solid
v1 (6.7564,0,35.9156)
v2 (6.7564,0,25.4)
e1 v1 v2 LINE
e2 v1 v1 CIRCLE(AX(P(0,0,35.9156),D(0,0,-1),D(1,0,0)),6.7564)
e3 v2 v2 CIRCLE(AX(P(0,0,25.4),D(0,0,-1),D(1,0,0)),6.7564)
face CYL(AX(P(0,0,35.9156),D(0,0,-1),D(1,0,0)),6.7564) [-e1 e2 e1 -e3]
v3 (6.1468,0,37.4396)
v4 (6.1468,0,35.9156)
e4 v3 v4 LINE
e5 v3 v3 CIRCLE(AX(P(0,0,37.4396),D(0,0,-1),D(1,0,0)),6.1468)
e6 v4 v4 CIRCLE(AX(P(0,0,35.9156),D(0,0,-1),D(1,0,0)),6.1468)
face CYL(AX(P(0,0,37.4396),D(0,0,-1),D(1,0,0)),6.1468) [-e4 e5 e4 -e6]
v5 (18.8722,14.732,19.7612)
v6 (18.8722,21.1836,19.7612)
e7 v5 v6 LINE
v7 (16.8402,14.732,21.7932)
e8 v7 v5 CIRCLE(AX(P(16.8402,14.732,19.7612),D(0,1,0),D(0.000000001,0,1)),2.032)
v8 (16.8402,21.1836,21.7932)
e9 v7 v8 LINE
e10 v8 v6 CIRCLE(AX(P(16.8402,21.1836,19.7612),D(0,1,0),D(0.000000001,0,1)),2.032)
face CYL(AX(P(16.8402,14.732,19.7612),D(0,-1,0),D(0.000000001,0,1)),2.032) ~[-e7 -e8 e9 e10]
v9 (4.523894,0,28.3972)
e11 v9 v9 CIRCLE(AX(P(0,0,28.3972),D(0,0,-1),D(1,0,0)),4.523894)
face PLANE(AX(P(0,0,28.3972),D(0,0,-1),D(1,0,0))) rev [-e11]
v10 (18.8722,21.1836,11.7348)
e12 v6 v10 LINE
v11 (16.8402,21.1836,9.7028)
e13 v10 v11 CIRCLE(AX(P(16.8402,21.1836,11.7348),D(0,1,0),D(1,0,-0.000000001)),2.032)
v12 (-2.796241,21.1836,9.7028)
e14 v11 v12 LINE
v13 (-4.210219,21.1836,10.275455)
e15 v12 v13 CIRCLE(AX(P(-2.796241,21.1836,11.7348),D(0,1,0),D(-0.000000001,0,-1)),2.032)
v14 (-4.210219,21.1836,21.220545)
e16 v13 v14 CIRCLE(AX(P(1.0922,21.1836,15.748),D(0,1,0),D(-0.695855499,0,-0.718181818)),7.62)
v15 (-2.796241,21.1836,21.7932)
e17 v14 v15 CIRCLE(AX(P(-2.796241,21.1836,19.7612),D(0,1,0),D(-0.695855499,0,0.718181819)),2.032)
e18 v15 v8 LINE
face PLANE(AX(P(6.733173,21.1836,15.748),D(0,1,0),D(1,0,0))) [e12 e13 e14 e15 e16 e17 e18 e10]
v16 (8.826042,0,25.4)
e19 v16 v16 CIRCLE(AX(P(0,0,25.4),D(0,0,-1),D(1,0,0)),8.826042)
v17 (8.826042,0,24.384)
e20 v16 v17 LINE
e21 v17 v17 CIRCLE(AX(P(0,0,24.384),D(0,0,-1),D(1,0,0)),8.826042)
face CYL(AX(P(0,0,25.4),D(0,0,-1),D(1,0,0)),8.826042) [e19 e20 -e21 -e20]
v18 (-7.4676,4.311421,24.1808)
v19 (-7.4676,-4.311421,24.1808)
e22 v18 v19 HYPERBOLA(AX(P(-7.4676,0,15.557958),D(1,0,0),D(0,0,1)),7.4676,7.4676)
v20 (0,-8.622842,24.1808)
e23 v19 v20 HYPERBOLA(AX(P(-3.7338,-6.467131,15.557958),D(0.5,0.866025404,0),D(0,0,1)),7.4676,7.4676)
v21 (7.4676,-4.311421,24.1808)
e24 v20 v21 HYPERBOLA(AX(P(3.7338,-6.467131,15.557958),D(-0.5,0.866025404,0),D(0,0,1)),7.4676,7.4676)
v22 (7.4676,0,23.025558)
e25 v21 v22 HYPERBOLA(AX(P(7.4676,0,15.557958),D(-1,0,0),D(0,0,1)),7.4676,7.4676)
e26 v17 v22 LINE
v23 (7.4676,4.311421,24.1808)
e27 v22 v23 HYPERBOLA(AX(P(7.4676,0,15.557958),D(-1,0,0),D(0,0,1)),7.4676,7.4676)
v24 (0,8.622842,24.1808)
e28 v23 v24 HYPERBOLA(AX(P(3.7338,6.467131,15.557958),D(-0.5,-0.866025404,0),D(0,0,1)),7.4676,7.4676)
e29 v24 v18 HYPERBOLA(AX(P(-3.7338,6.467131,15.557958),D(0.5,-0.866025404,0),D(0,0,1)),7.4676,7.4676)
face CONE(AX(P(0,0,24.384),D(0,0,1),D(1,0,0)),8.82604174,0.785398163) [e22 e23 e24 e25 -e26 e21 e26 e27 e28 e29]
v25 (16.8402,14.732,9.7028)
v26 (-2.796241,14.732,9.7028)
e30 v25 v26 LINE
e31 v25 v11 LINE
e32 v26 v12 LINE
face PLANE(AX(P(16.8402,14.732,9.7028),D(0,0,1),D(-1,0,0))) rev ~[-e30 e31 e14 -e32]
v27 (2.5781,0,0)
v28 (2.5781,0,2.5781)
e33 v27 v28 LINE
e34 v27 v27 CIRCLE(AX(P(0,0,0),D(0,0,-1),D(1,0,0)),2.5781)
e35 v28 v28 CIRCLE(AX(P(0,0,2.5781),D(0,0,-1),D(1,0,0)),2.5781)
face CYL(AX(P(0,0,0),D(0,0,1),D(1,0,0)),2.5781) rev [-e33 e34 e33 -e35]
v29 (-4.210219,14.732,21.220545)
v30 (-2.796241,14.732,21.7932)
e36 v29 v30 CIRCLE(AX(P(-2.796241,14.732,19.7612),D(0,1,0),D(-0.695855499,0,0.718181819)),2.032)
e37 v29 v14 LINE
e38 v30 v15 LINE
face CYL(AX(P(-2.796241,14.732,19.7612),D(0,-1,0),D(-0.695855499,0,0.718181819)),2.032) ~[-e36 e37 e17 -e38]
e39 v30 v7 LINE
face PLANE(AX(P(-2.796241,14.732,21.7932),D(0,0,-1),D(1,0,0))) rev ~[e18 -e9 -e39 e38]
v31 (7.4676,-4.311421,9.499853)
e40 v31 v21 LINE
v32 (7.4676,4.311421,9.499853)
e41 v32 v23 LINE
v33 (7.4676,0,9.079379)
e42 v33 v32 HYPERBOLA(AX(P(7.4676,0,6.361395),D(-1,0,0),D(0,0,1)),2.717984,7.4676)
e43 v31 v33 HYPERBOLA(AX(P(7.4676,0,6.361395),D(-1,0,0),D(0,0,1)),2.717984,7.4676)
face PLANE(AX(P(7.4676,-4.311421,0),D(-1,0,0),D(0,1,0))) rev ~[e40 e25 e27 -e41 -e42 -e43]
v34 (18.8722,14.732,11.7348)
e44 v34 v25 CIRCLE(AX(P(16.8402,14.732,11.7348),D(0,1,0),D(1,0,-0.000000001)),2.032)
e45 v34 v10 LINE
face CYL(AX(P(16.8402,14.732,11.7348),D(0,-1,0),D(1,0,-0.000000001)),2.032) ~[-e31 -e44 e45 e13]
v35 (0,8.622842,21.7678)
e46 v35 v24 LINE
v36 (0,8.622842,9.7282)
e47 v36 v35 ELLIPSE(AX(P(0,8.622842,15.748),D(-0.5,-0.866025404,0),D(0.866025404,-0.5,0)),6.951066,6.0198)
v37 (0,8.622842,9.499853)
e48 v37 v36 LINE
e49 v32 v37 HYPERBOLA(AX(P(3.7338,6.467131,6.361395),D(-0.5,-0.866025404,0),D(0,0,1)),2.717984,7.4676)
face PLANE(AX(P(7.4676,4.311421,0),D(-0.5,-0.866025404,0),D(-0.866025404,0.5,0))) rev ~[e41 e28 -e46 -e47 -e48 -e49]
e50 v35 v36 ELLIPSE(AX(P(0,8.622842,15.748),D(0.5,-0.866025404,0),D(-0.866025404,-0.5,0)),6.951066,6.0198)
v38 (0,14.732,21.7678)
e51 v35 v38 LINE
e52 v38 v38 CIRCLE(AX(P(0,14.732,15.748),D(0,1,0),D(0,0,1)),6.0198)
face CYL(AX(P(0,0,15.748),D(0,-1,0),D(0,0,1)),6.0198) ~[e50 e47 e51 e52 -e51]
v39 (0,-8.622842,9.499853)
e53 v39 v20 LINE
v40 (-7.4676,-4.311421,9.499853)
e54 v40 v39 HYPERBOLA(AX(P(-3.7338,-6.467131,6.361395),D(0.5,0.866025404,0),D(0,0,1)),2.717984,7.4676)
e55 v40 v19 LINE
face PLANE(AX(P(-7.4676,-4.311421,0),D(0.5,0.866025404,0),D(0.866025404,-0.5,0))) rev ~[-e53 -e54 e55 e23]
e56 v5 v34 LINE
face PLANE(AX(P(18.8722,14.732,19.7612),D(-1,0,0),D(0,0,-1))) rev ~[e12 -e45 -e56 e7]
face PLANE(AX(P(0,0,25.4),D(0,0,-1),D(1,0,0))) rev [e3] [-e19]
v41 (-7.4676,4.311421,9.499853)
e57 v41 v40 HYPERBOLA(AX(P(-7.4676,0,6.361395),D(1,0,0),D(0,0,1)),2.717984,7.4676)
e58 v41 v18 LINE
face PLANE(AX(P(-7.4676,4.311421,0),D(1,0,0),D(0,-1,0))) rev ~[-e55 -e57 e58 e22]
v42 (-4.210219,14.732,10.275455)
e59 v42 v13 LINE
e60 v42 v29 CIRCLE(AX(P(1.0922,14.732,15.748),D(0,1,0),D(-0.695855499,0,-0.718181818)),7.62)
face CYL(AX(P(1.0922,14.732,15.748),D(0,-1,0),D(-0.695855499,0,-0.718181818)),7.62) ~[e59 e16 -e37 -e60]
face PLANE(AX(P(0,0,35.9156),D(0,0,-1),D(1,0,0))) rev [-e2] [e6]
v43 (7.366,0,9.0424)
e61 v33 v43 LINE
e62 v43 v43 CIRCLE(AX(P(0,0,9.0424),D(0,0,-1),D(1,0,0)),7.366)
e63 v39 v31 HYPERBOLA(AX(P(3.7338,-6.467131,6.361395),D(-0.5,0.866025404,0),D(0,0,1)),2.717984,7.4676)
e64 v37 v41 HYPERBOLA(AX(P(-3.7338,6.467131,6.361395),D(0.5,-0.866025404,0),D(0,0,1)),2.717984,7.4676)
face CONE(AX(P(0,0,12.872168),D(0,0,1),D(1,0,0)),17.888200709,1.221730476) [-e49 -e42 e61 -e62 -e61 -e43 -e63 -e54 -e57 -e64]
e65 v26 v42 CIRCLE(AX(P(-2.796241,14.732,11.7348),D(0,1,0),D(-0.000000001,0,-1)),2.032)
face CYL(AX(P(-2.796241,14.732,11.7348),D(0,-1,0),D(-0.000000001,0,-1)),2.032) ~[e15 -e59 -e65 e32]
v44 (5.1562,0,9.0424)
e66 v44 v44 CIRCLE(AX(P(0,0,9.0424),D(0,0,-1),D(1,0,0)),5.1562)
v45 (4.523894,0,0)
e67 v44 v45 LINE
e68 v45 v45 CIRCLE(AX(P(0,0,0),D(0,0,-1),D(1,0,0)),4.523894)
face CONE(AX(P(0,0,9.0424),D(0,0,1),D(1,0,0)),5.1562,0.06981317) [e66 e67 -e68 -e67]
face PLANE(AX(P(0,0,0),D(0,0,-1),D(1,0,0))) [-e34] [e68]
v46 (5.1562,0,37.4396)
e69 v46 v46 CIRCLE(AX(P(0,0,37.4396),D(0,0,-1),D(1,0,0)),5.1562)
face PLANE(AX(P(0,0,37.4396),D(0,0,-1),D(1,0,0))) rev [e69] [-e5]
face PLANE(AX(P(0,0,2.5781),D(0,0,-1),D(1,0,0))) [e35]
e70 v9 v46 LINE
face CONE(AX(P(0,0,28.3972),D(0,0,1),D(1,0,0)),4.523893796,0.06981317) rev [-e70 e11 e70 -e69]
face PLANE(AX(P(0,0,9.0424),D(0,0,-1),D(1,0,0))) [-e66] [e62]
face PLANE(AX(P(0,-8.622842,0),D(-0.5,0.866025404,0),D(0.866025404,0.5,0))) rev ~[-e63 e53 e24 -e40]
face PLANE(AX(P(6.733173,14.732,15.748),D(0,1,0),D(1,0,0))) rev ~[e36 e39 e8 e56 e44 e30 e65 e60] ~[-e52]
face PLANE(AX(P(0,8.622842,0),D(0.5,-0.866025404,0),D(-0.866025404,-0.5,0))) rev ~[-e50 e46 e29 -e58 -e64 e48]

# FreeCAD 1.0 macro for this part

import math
import FreeCAD as App
import Part
import Sketcher
from FreeCAD import Vector
Q = App.Units.Quantity

doc = App.newDocument("Part")
params = doc.addObject("Spreadsheet::Sheet", "Params")
for row, (alias, value) in enumerate([
    ("pad1_length", "1.8 in"),
    ("sketch2_height", "0.06 in"),
    ("sketch2_width", "0.039 in"),
    ("sketch2_width2", "0.024 in"),
    ("sketch2_width3", "0.087 in"),
    ("sketch2_height2", "0.414 in"),
    ("groove_angle", "360 deg"),
    ("sketch3_height", "0.04 in"),
    ("revolution_angle", "360 deg"),
    ("sketch4_diameter", "0.474 in"),
    ("pad2_length", "0.58 in"),
    ("sketch5_radius", "0.3 in"),
    ("sketch5_radius2", "0.08 in"),
    ("sketch5_height", "0.316 in"),
    ("pad3_length", "0.254 in"),
], start=1):
    params.set(f"A{row}", alias)
    params.set(f"B{row}", "=" + value)
    params.setAlias(f"B{row}", alias)

body = doc.addObject("PartDesign::Body", "Body")

sketch1 = body.newObject("Sketcher::SketchObject", "Sketch")
sketch1.AttachmentSupport = (doc.getObject("XY_Plane"), [""])
sketch1.MapMode = "FlatFace"
sketch1.addGeometry(Part.LineSegment(Vector(0, 9, 0), Vector(-7, 4, 0)), False)
sketch1.addGeometry(Part.LineSegment(Vector(-7, 4, 0), Vector(-7, -4, 0)), False)
sketch1.addGeometry(Part.LineSegment(Vector(-7, -4, 0), Vector(0, -9, 0)), False)
sketch1.addGeometry(Part.LineSegment(Vector(0, -9, 0), Vector(7, -4, 0)), False)
sketch1.addGeometry(Part.LineSegment(Vector(7, -4, 0), Vector(7, 4, 0)), False)
sketch1.addGeometry(Part.LineSegment(Vector(7, 4, 0), Vector(0, 9, 0)), False)
sketch1.addConstraint(Sketcher.Constraint("Coincident", 0, 2, 1, 1))
sketch1.addConstraint(Sketcher.Constraint("Coincident", 1, 2, 2, 1))
sketch1.addConstraint(Sketcher.Constraint("Coincident", 2, 2, 3, 1))
sketch1.addConstraint(Sketcher.Constraint("Coincident", 3, 2, 4, 1))
sketch1.addConstraint(Sketcher.Constraint("Coincident", 4, 2, 5, 1))
sketch1.addConstraint(Sketcher.Constraint("Coincident", 5, 2, 0, 1))
sketch1.addConstraint(Sketcher.Constraint("Vertical", 1))
sketch1.addConstraint(Sketcher.Constraint("Vertical", 4))
sketch1.addConstraint(Sketcher.Constraint("Symmetric", 0, 2, 3, 2, -1, 1))
sketch1.addConstraint(Sketcher.Constraint("Symmetric", 2, 2, 5, 2, -1, 1))
sketch1.addConstraint(Sketcher.Constraint("PointOnObject", 2, 2, -2))
sketch1.addConstraint(Sketcher.Constraint("Parallel", 2, 5))
sketch1.addConstraint(Sketcher.Constraint("Horizontal", 1, 2, 3, 2))
sketch1.addConstraint(Sketcher.Constraint("Angle", 0, Q("-150 deg")))
sketch1.addConstraint(Sketcher.Constraint("DistanceX", 0, 2, -1, 1, Q("0.294 in")))
sketch1.addConstraint(Sketcher.Constraint("DistanceY", 1, 2, 1, 1, Q("8.622842 mm")))
pad1 = body.newObject("PartDesign::Pad", "Pad")
pad1.Profile = sketch1
pad1.setExpression("Length", "Params.pad1_length")

sketch2 = body.newObject("Sketcher::SketchObject", "Sketch001")
sketch2.AttachmentSupport = (doc.getObject("YZ_Plane"), [""])
sketch2.MapMode = "FlatFace"
sketch2.addGeometry(Part.LineSegment(Vector(0, -8.7, 0), Vector(29, -8.7, 0)), False)
sketch2.addGeometry(Part.LineSegment(Vector(29, -8.7, 0), Vector(29, 61.3, 0)), False)
sketch2.addGeometry(Part.LineSegment(Vector(29, 61.3, 0), Vector(0, 61.3, 0)), False)
sketch2.addGeometry(Part.LineSegment(Vector(0, 61.3, 0), Vector(0, 28.4, 0)), False)
sketch2.addGeometry(Part.LineSegment(Vector(0, 28.4, 0), Vector(4.5, 28.4, 0)), False)
sketch2.addGeometry(Part.LineSegment(Vector(4.5, 28.4, 0), Vector(5.2, 37.4, 0)), False)
sketch2.addGeometry(Part.LineSegment(Vector(5.2, 37.4, 0), Vector(6.1, 37.4, 0)), False)
sketch2.addGeometry(Part.LineSegment(Vector(6.1, 37.4, 0), Vector(6.1, 35.9, 0)), False)
sketch2.addGeometry(Part.LineSegment(Vector(6.1, 35.9, 0), Vector(6.8, 35.9, 0)), False)
sketch2.addGeometry(Part.LineSegment(Vector(6.8, 35.9, 0), Vector(6.8, 25.4, 0)), False)
sketch2.addGeometry(Part.LineSegment(Vector(6.8, 25.4, 0), Vector(17.9, 25.4, 0)), False)
sketch2.addGeometry(Part.LineSegment(Vector(17.9, 25.4, 0), Vector(17.9, 12.9, 0)), False)
sketch2.addGeometry(Part.LineSegment(Vector(17.9, 12.9, 0), Vector(7.4, 9, 0)), False)
sketch2.addGeometry(Part.LineSegment(Vector(7.4, 9, 0), Vector(5.2, 9, 0)), False)
sketch2.addGeometry(Part.LineSegment(Vector(5.2, 9, 0), Vector(4.5, 0, 0)), False)
sketch2.addGeometry(Part.LineSegment(Vector(4.5, 0, 0), Vector(2.6, 0, 0)), False)
sketch2.addGeometry(Part.LineSegment(Vector(2.6, 0, 0), Vector(2.6, 2.6, 0)), False)
sketch2.addGeometry(Part.LineSegment(Vector(2.6, 2.6, 0), Vector(0, 2.6, 0)), False)
sketch2.addGeometry(Part.LineSegment(Vector(0, 2.6, 0), Vector(0, -8.7, 0)), False)
sketch2.addConstraint(Sketcher.Constraint("Coincident", 0, 2, 1, 1))
sketch2.addConstraint(Sketcher.Constraint("Coincident", 1, 2, 2, 1))
sketch2.addConstraint(Sketcher.Constraint("Coincident", 2, 2, 3, 1))
sketch2.addConstraint(Sketcher.Constraint("Coincident", 3, 2, 4, 1))
sketch2.addConstraint(Sketcher.Constraint("Coincident", 4, 2, 5, 1))
sketch2.addConstraint(Sketcher.Constraint("Coincident", 5, 2, 6, 1))
sketch2.addConstraint(Sketcher.Constraint("Coincident", 6, 2, 7, 1))
sketch2.addConstraint(Sketcher.Constraint("Coincident", 7, 2, 8, 1))
sketch2.addConstraint(Sketcher.Constraint("Coincident", 8, 2, 9, 1))
sketch2.addConstraint(Sketcher.Constraint("Coincident", 9, 2, 10, 1))
sketch2.addConstraint(Sketcher.Constraint("Coincident", 10, 2, 11, 1))
sketch2.addConstraint(Sketcher.Constraint("Coincident", 11, 2, 12, 1))
sketch2.addConstraint(Sketcher.Constraint("Coincident", 12, 2, 13, 1))
sketch2.addConstraint(Sketcher.Constraint("Coincident", 13, 2, 14, 1))
sketch2.addConstraint(Sketcher.Constraint("Coincident", 14, 2, 15, 1))
sketch2.addConstraint(Sketcher.Constraint("Coincident", 15, 2, 16, 1))
sketch2.addConstraint(Sketcher.Constraint("Coincident", 16, 2, 17, 1))
sketch2.addConstraint(Sketcher.Constraint("Coincident", 17, 2, 18, 1))
sketch2.addConstraint(Sketcher.Constraint("Coincident", 18, 2, 0, 1))
sketch2.addConstraint(Sketcher.Constraint("Horizontal", 0))
sketch2.addConstraint(Sketcher.Constraint("Vertical", 1))
sketch2.addConstraint(Sketcher.Constraint("Horizontal", 2))
sketch2.addConstraint(Sketcher.Constraint("Vertical", 3))
sketch2.addConstraint(Sketcher.Constraint("Horizontal", 4))
sketch2.addConstraint(Sketcher.Constraint("Horizontal", 6))
sketch2.addConstraint(Sketcher.Constraint("Vertical", 7))
sketch2.addConstraint(Sketcher.Constraint("Horizontal", 8))
sketch2.addConstraint(Sketcher.Constraint("Vertical", 9))
sketch2.addConstraint(Sketcher.Constraint("Horizontal", 10))
sketch2.addConstraint(Sketcher.Constraint("Vertical", 11))
sketch2.addConstraint(Sketcher.Constraint("Horizontal", 13))
sketch2.addConstraint(Sketcher.Constraint("Horizontal", 15))
sketch2.addConstraint(Sketcher.Constraint("Vertical", 16))
sketch2.addConstraint(Sketcher.Constraint("Horizontal", 17))
sketch2.addConstraint(Sketcher.Constraint("Vertical", 18))
sketch2.addConstraint(Sketcher.Constraint("PointOnObject", 2, 2, -2))
sketch2.addConstraint(Sketcher.Constraint("PointOnObject", 14, 2, -1))
sketch2.addConstraint(Sketcher.Constraint("PointOnObject", 17, 2, -2))
sketch2.addConstraint(Sketcher.Constraint("Parallel", 5, 14))
sketch2.addConstraint(Sketcher.Constraint("Vertical", 5, 2, 13, 2))
sketch2.addConstraint(Sketcher.Constraint("Vertical", 4, 2, 14, 2))
sketch2.addConstraint(Sketcher.Constraint("Equal", 17, 16))
sketch2.addConstraint(Sketcher.Constraint("DistanceY", -1, 1, 9, 2, Q("1 in")))
sketch2.addConstraint(Sketcher.Constraint("Angle", 5, Q("86 deg")))
sketch2.addConstraint(Sketcher.Constraint("Angle", 12, Q("-160 deg")))
sketch2.addConstraint(Sketcher.Constraint("DistanceY", 7, 2, 7, 1, Q("0.06 in")))
sketch2.addConstraint(Sketcher.Constraint("DistanceX", 6, 1, 6, 2, Q("0.039 in")))
sketch2.addConstraint(Sketcher.Constraint("DistanceX", 8, 1, 8, 2, Q("0.024 in")))
sketch2.addConstraint(Sketcher.Constraint("DistanceX", 13, 2, 13, 1, Q("0.087 in")))
sketch2.addConstraint(Sketcher.Constraint("DistanceY", 9, 2, 9, 1, Q("0.414 in")))
sketch2.addConstraint(Sketcher.Constraint("DistanceX", -1, 1, 12, 2, Q("0.29 in")))
sketch2.addConstraint(Sketcher.Constraint("DistanceX", 17, 2, 17, 1, Q("0.1015 in")))
sketch2.addConstraint(Sketcher.Constraint("DistanceY", -1, 1, 3, 2, Q("1.118 in")))
sketch2.addConstraint(Sketcher.Constraint("DistanceX", 10, 1, 10, 2, Q("11.131801 mm")))
sketch2.addConstraint(Sketcher.Constraint("DistanceX", 0, 1, 0, 2, Q("28.967331 mm")))
sketch2.addConstraint(Sketcher.Constraint("DistanceY", 1, 1, 1, 2, Q("70.036162 mm")))
sketch2.addConstraint(Sketcher.Constraint("DistanceY", 3, 2, 3, 1, Q("32.916697 mm")))
sketch2.setExpression("Constraints[45]", "Params.sketch2_height")
sketch2.setExpression("Constraints[46]", "Params.sketch2_width")
sketch2.setExpression("Constraints[47]", "Params.sketch2_width2")
sketch2.setExpression("Constraints[48]", "Params.sketch2_width3")
sketch2.setExpression("Constraints[49]", "Params.sketch2_height2")
groove = body.newObject("PartDesign::Groove", "Groove")
groove.Profile = sketch2
groove.ReferenceAxis = (sketch2, ["V_Axis"])
groove.setExpression("Angle", "Params.groove_angle")

sketch3 = body.newObject("Sketcher::SketchObject", "Sketch002")
sketch3.AttachmentSupport = (doc.getObject("YZ_Plane"), [""])
sketch3.MapMode = "FlatFace"
sketch3.addGeometry(Part.LineSegment(Vector(8.8, 24.4, 0), Vector(8.8, 25.4, 0)), False)
sketch3.addGeometry(Part.LineSegment(Vector(8.8, 25.4, 0), Vector(3.9, 25.4, 0)), False)
sketch3.addGeometry(Part.LineSegment(Vector(3.9, 25.4, 0), Vector(3.9, 19.5, 0)), False)
sketch3.addGeometry(Part.LineSegment(Vector(3.9, 19.5, 0), Vector(8.8, 24.4, 0)), False)
sketch3.addConstraint(Sketcher.Constraint("Coincident", 0, 2, 1, 1))
sketch3.addConstraint(Sketcher.Constraint("Coincident", 1, 2, 2, 1))
sketch3.addConstraint(Sketcher.Constraint("Coincident", 2, 2, 3, 1))
sketch3.addConstraint(Sketcher.Constraint("Coincident", 3, 2, 0, 1))
sketch3.addConstraint(Sketcher.Constraint("Vertical", 0))
sketch3.addConstraint(Sketcher.Constraint("Horizontal", 1))
sketch3.addConstraint(Sketcher.Constraint("Vertical", 2))
sketch3.addConstraint(Sketcher.Constraint("DistanceY", -1, 1, 0, 2, Q("1 in")))
sketch3.addConstraint(Sketcher.Constraint("Angle", 3, Q("45 deg")))
sketch3.addConstraint(Sketcher.Constraint("DistanceY", 0, 1, 0, 2, Q("0.04 in")))
sketch3.addConstraint(Sketcher.Constraint("DistanceX", 1, 2, 1, 1, Q("4.904669 mm")))
sketch3.addConstraint(Sketcher.Constraint("DistanceX", -1, 1, 0, 2, Q("8.826042 mm")))
sketch3.setExpression("Constraints[9]", "Params.sketch3_height")
revolution = body.newObject("PartDesign::Revolution", "Revolution")
revolution.Profile = sketch3
revolution.ReferenceAxis = (sketch3, ["V_Axis"])
revolution.setExpression("Angle", "Params.revolution_angle")

sketch4 = body.newObject("Sketcher::SketchObject", "Sketch003")
sketch4.AttachmentSupport = (doc.getObject("XZ_Plane"), [""])
sketch4.MapMode = "FlatFace"
sketch4.addGeometry(Part.Circle(Vector(0, 16, 0), Vector(0, 0, 1), 6), False)
sketch4.addConstraint(Sketcher.Constraint("PointOnObject", 0, 3, -2))
sketch4.addConstraint(Sketcher.Constraint("Diameter", 0, Q("0.474 in")))
sketch4.addConstraint(Sketcher.Constraint("DistanceY", -1, 1, 0, 3, Q("0.62 in")))
sketch4.setExpression("Constraints[1]", "Params.sketch4_diameter")
pad2 = body.newObject("PartDesign::Pad", "Pad001")
pad2.Profile = sketch4
pad2.setExpression("Length", "Params.pad2_length")
pad2.Reversed = True

sketch5 = body.newObject("Sketcher::SketchObject", "Sketch004")
sketch5.AttachmentSupport = (doc.getObject("XZ_Plane"), [""])
sketch5.MapMode = "FlatFace"
sketch5.AttachmentOffset = App.Placement(Vector(0, 0, -0.58 * 25.4), App.Rotation())
sketch5.addGeometry(Part.LineSegment(Vector(-2.8, 21.8, 0), Vector(16.8, 21.8, 0)), False)
sketch5.addGeometry(Part.ArcOfCircle(Part.Circle(Vector(16.8, 19.8, 0), Vector(0, 0, 1), 2), math.radians(0), math.radians(90)), False)
sketch5.addGeometry(Part.LineSegment(Vector(18.9, 19.8, 0), Vector(18.9, 11.7, 0)), False)
sketch5.addGeometry(Part.ArcOfCircle(Part.Circle(Vector(16.8, 11.7, 0), Vector(0, 0, 1), 2), math.radians(-90), math.radians(0)), False)
sketch5.addGeometry(Part.LineSegment(Vector(16.8, 9.7, 0), Vector(-2.8, 9.7, 0)), False)
sketch5.addGeometry(Part.ArcOfCircle(Part.Circle(Vector(-2.8, 11.7, 0), Vector(0, 0, 1), 2), math.radians(-134), math.radians(-90)), False)
sketch5.addGeometry(Part.ArcOfCircle(Part.Circle(Vector(1.1, 15.7, 0), Vector(0, 0, 1), 7.6), math.radians(134), math.radians(226)), False)
sketch5.addGeometry(Part.ArcOfCircle(Part.Circle(Vector(-2.8, 19.8, 0), Vector(0, 0, 1), 2), math.radians(90), math.radians(134)), False)
sketch5.addConstraint(Sketcher.Constraint("Tangent", 0, 2, 1, 2))
sketch5.addConstraint(Sketcher.Constraint("Tangent", 1, 1, 2, 1))
sketch5.addConstraint(Sketcher.Constraint("Tangent", 2, 2, 3, 2))
sketch5.addConstraint(Sketcher.Constraint("Tangent", 3, 1, 4, 1))
sketch5.addConstraint(Sketcher.Constraint("Tangent", 4, 2, 5, 2))
sketch5.addConstraint(Sketcher.Constraint("Tangent", 5, 1, 6, 2))
sketch5.addConstraint(Sketcher.Constraint("Tangent", 6, 1, 7, 2))
sketch5.addConstraint(Sketcher.Constraint("Tangent", 7, 1, 0, 1))
sketch5.addConstraint(Sketcher.Constraint("Horizontal", 0))
sketch5.addConstraint(Sketcher.Constraint("Vertical", 2))
sketch5.addConstraint(Sketcher.Constraint("Horizontal", 4))
sketch5.addConstraint(Sketcher.Constraint("Equal", 1, 3))
sketch5.addConstraint(Sketcher.Constraint("Equal", 3, 5))
sketch5.addConstraint(Sketcher.Constraint("Equal", 5, 7))
sketch5.addConstraint(Sketcher.Constraint("Vertical", 5, 3, 7, 3))
sketch5.addConstraint(Sketcher.Constraint("Radius", 6, Q("0.3 in")))
sketch5.addConstraint(Sketcher.Constraint("Radius", 1, Q("0.08 in")))
sketch5.addConstraint(Sketcher.Constraint("DistanceX", 6, 3, 1, 1, Q("0.7 in")))
sketch5.addConstraint(Sketcher.Constraint("DistanceY", 2, 2, 2, 1, Q("0.316 in")))
sketch5.addConstraint(Sketcher.Constraint("DistanceY", -1, 1, 6, 3, Q("0.62 in")))
sketch5.addConstraint(Sketcher.Constraint("DistanceX", -1, 1, 1, 3, Q("0.663 in")))
sketch5.setExpression("Constraints[15]", "Params.sketch5_radius")
sketch5.setExpression("Constraints[16]", "Params.sketch5_radius2")
sketch5.setExpression("Constraints[18]", "Params.sketch5_height")
pad3 = body.newObject("PartDesign::Pad", "Pad002")
pad3.Profile = sketch5
pad3.setExpression("Length", "Params.pad3_length")
pad3.Reversed = True

doc.recompute()
